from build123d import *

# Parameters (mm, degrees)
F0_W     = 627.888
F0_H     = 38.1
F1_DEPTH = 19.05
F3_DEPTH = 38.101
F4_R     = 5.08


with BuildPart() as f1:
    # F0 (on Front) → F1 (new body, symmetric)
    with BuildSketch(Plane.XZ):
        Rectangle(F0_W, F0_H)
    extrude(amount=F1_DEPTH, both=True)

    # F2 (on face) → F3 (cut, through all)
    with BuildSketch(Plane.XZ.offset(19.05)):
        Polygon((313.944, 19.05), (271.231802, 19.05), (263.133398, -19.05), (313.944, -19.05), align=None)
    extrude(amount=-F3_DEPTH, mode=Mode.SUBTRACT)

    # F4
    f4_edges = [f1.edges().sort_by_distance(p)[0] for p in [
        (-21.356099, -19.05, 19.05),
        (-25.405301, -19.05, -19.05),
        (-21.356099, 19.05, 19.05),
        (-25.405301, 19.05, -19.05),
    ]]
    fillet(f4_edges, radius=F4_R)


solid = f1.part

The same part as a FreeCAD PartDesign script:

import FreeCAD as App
import Part
import Sketcher
from FreeCAD import Vector
Q = App.Units.Quantity


def edges_at(feature, points):
    """Names of the edges that pass closest to the given points."""
    edges = feature.Shape.Edges
    near = lambda p: min(range(len(edges)), key=lambda i: edges[i].distToShape(Part.Vertex(*p))[0])
    return sorted({f"Edge{near(p) + 1}" for p in points})

doc = App.newDocument("Part")
body = doc.addObject("PartDesign::Body", "Body")

# Sketch on XZ plane
sketch1 = body.newObject("Sketcher::SketchObject", "Sketch")
sketch1.AttachmentSupport = (doc.getObject("XZ_Plane"), [""])
sketch1.MapMode = "FlatFace"
sketch1.addGeometry([
    Part.LineSegment(Vector(-314, 19, 0), Vector(-314, -19, 0)),
    Part.LineSegment(Vector(-314, -19, 0), Vector(314, -19, 0)),
    Part.LineSegment(Vector(314, -19, 0), Vector(314, 19, 0)),
    Part.LineSegment(Vector(314, 19, 0), Vector(-314, 19, 0)),
], False)
sketch1.addConstraint([
    Sketcher.Constraint("Coincident", 0, 2, 1, 1),
    Sketcher.Constraint("Coincident", 1, 2, 2, 1),
    Sketcher.Constraint("Coincident", 2, 2, 3, 1),
    Sketcher.Constraint("Coincident", 3, 2, 0, 1),
    Sketcher.Constraint("Vertical", 0),
    Sketcher.Constraint("Horizontal", 1),
    Sketcher.Constraint("Vertical", 2),
    Sketcher.Constraint("Horizontal", 3),
    Sketcher.Constraint("Symmetric", 0, 2, 2, 2, -1, 1),
    Sketcher.Constraint("DistanceY", 0, 2, 0, 1, Q("1.5 in")),
    Sketcher.Constraint("DistanceX", 1, 1, 1, 2, Q("24.72 in")),
])
pad1 = body.newObject("PartDesign::Pad", "Pad")
pad1.Profile = sketch1
pad1.Length = Q("1.5 in")
pad1.Midplane = True

# Sketch on XZ plane
sketch2 = body.newObject("Sketcher::SketchObject", "Sketch001")
sketch2.AttachmentSupport = (doc.getObject("XZ_Plane"), [""])
sketch2.MapMode = "FlatFace"
sketch2.AttachmentOffset = App.Placement(Vector(0, 0, 0.75 * 25.4), App.Rotation())
sketch2.addGeometry([
    Part.LineSegment(Vector(314, 19, 0), Vector(271, 19, 0)),
    Part.LineSegment(Vector(271, 19, 0), Vector(263, -19, 0)),
    Part.LineSegment(Vector(263, -19, 0), Vector(314, -19, 0)),
    Part.LineSegment(Vector(314, -19, 0), Vector(314, 19, 0)),
], False)
sketch2.addConstraint([
    Sketcher.Constraint("Coincident", 0, 2, 1, 1),
    Sketcher.Constraint("Coincident", 1, 2, 2, 1),
    Sketcher.Constraint("Coincident", 2, 2, 3, 1),
    Sketcher.Constraint("Coincident", 3, 2, 0, 1),
    Sketcher.Constraint("Horizontal", 0),
    Sketcher.Constraint("Horizontal", 2),
    Sketcher.Constraint("Vertical", 3),
    Sketcher.Constraint("DistanceY", 3, 1, 3, 2, Q("1.5 in")),
    Sketcher.Constraint("Angle", 1, Q("-101.999999 deg")),
    Sketcher.Constraint("DistanceY", -1, 1, 0, 2, Q("0.75 in")),
    Sketcher.Constraint("DistanceX", -1, 1, 2, 2, Q("12.36 in")),
    Sketcher.Constraint("DistanceX", -1, 1, 0, 2, 271.231802),
])
pocket1 = body.newObject("PartDesign::Pocket", "Pocket")
pocket1.Profile = sketch2
pocket1.Type = "ThroughAll"
doc.recompute()

fillet = body.newObject("PartDesign::Fillet", "Fillet")
fillet.Base = (pocket1, edges_at(pocket1, [
    (-21.356, -19.05, 19.05),
    (-25.405, -19.05, -19.05),
    (-21.356, 19.05, 19.05),
    (-25.405, 19.05, -19.05),
]))
fillet.Radius = Q("0.2 in")

doc.recompute()
